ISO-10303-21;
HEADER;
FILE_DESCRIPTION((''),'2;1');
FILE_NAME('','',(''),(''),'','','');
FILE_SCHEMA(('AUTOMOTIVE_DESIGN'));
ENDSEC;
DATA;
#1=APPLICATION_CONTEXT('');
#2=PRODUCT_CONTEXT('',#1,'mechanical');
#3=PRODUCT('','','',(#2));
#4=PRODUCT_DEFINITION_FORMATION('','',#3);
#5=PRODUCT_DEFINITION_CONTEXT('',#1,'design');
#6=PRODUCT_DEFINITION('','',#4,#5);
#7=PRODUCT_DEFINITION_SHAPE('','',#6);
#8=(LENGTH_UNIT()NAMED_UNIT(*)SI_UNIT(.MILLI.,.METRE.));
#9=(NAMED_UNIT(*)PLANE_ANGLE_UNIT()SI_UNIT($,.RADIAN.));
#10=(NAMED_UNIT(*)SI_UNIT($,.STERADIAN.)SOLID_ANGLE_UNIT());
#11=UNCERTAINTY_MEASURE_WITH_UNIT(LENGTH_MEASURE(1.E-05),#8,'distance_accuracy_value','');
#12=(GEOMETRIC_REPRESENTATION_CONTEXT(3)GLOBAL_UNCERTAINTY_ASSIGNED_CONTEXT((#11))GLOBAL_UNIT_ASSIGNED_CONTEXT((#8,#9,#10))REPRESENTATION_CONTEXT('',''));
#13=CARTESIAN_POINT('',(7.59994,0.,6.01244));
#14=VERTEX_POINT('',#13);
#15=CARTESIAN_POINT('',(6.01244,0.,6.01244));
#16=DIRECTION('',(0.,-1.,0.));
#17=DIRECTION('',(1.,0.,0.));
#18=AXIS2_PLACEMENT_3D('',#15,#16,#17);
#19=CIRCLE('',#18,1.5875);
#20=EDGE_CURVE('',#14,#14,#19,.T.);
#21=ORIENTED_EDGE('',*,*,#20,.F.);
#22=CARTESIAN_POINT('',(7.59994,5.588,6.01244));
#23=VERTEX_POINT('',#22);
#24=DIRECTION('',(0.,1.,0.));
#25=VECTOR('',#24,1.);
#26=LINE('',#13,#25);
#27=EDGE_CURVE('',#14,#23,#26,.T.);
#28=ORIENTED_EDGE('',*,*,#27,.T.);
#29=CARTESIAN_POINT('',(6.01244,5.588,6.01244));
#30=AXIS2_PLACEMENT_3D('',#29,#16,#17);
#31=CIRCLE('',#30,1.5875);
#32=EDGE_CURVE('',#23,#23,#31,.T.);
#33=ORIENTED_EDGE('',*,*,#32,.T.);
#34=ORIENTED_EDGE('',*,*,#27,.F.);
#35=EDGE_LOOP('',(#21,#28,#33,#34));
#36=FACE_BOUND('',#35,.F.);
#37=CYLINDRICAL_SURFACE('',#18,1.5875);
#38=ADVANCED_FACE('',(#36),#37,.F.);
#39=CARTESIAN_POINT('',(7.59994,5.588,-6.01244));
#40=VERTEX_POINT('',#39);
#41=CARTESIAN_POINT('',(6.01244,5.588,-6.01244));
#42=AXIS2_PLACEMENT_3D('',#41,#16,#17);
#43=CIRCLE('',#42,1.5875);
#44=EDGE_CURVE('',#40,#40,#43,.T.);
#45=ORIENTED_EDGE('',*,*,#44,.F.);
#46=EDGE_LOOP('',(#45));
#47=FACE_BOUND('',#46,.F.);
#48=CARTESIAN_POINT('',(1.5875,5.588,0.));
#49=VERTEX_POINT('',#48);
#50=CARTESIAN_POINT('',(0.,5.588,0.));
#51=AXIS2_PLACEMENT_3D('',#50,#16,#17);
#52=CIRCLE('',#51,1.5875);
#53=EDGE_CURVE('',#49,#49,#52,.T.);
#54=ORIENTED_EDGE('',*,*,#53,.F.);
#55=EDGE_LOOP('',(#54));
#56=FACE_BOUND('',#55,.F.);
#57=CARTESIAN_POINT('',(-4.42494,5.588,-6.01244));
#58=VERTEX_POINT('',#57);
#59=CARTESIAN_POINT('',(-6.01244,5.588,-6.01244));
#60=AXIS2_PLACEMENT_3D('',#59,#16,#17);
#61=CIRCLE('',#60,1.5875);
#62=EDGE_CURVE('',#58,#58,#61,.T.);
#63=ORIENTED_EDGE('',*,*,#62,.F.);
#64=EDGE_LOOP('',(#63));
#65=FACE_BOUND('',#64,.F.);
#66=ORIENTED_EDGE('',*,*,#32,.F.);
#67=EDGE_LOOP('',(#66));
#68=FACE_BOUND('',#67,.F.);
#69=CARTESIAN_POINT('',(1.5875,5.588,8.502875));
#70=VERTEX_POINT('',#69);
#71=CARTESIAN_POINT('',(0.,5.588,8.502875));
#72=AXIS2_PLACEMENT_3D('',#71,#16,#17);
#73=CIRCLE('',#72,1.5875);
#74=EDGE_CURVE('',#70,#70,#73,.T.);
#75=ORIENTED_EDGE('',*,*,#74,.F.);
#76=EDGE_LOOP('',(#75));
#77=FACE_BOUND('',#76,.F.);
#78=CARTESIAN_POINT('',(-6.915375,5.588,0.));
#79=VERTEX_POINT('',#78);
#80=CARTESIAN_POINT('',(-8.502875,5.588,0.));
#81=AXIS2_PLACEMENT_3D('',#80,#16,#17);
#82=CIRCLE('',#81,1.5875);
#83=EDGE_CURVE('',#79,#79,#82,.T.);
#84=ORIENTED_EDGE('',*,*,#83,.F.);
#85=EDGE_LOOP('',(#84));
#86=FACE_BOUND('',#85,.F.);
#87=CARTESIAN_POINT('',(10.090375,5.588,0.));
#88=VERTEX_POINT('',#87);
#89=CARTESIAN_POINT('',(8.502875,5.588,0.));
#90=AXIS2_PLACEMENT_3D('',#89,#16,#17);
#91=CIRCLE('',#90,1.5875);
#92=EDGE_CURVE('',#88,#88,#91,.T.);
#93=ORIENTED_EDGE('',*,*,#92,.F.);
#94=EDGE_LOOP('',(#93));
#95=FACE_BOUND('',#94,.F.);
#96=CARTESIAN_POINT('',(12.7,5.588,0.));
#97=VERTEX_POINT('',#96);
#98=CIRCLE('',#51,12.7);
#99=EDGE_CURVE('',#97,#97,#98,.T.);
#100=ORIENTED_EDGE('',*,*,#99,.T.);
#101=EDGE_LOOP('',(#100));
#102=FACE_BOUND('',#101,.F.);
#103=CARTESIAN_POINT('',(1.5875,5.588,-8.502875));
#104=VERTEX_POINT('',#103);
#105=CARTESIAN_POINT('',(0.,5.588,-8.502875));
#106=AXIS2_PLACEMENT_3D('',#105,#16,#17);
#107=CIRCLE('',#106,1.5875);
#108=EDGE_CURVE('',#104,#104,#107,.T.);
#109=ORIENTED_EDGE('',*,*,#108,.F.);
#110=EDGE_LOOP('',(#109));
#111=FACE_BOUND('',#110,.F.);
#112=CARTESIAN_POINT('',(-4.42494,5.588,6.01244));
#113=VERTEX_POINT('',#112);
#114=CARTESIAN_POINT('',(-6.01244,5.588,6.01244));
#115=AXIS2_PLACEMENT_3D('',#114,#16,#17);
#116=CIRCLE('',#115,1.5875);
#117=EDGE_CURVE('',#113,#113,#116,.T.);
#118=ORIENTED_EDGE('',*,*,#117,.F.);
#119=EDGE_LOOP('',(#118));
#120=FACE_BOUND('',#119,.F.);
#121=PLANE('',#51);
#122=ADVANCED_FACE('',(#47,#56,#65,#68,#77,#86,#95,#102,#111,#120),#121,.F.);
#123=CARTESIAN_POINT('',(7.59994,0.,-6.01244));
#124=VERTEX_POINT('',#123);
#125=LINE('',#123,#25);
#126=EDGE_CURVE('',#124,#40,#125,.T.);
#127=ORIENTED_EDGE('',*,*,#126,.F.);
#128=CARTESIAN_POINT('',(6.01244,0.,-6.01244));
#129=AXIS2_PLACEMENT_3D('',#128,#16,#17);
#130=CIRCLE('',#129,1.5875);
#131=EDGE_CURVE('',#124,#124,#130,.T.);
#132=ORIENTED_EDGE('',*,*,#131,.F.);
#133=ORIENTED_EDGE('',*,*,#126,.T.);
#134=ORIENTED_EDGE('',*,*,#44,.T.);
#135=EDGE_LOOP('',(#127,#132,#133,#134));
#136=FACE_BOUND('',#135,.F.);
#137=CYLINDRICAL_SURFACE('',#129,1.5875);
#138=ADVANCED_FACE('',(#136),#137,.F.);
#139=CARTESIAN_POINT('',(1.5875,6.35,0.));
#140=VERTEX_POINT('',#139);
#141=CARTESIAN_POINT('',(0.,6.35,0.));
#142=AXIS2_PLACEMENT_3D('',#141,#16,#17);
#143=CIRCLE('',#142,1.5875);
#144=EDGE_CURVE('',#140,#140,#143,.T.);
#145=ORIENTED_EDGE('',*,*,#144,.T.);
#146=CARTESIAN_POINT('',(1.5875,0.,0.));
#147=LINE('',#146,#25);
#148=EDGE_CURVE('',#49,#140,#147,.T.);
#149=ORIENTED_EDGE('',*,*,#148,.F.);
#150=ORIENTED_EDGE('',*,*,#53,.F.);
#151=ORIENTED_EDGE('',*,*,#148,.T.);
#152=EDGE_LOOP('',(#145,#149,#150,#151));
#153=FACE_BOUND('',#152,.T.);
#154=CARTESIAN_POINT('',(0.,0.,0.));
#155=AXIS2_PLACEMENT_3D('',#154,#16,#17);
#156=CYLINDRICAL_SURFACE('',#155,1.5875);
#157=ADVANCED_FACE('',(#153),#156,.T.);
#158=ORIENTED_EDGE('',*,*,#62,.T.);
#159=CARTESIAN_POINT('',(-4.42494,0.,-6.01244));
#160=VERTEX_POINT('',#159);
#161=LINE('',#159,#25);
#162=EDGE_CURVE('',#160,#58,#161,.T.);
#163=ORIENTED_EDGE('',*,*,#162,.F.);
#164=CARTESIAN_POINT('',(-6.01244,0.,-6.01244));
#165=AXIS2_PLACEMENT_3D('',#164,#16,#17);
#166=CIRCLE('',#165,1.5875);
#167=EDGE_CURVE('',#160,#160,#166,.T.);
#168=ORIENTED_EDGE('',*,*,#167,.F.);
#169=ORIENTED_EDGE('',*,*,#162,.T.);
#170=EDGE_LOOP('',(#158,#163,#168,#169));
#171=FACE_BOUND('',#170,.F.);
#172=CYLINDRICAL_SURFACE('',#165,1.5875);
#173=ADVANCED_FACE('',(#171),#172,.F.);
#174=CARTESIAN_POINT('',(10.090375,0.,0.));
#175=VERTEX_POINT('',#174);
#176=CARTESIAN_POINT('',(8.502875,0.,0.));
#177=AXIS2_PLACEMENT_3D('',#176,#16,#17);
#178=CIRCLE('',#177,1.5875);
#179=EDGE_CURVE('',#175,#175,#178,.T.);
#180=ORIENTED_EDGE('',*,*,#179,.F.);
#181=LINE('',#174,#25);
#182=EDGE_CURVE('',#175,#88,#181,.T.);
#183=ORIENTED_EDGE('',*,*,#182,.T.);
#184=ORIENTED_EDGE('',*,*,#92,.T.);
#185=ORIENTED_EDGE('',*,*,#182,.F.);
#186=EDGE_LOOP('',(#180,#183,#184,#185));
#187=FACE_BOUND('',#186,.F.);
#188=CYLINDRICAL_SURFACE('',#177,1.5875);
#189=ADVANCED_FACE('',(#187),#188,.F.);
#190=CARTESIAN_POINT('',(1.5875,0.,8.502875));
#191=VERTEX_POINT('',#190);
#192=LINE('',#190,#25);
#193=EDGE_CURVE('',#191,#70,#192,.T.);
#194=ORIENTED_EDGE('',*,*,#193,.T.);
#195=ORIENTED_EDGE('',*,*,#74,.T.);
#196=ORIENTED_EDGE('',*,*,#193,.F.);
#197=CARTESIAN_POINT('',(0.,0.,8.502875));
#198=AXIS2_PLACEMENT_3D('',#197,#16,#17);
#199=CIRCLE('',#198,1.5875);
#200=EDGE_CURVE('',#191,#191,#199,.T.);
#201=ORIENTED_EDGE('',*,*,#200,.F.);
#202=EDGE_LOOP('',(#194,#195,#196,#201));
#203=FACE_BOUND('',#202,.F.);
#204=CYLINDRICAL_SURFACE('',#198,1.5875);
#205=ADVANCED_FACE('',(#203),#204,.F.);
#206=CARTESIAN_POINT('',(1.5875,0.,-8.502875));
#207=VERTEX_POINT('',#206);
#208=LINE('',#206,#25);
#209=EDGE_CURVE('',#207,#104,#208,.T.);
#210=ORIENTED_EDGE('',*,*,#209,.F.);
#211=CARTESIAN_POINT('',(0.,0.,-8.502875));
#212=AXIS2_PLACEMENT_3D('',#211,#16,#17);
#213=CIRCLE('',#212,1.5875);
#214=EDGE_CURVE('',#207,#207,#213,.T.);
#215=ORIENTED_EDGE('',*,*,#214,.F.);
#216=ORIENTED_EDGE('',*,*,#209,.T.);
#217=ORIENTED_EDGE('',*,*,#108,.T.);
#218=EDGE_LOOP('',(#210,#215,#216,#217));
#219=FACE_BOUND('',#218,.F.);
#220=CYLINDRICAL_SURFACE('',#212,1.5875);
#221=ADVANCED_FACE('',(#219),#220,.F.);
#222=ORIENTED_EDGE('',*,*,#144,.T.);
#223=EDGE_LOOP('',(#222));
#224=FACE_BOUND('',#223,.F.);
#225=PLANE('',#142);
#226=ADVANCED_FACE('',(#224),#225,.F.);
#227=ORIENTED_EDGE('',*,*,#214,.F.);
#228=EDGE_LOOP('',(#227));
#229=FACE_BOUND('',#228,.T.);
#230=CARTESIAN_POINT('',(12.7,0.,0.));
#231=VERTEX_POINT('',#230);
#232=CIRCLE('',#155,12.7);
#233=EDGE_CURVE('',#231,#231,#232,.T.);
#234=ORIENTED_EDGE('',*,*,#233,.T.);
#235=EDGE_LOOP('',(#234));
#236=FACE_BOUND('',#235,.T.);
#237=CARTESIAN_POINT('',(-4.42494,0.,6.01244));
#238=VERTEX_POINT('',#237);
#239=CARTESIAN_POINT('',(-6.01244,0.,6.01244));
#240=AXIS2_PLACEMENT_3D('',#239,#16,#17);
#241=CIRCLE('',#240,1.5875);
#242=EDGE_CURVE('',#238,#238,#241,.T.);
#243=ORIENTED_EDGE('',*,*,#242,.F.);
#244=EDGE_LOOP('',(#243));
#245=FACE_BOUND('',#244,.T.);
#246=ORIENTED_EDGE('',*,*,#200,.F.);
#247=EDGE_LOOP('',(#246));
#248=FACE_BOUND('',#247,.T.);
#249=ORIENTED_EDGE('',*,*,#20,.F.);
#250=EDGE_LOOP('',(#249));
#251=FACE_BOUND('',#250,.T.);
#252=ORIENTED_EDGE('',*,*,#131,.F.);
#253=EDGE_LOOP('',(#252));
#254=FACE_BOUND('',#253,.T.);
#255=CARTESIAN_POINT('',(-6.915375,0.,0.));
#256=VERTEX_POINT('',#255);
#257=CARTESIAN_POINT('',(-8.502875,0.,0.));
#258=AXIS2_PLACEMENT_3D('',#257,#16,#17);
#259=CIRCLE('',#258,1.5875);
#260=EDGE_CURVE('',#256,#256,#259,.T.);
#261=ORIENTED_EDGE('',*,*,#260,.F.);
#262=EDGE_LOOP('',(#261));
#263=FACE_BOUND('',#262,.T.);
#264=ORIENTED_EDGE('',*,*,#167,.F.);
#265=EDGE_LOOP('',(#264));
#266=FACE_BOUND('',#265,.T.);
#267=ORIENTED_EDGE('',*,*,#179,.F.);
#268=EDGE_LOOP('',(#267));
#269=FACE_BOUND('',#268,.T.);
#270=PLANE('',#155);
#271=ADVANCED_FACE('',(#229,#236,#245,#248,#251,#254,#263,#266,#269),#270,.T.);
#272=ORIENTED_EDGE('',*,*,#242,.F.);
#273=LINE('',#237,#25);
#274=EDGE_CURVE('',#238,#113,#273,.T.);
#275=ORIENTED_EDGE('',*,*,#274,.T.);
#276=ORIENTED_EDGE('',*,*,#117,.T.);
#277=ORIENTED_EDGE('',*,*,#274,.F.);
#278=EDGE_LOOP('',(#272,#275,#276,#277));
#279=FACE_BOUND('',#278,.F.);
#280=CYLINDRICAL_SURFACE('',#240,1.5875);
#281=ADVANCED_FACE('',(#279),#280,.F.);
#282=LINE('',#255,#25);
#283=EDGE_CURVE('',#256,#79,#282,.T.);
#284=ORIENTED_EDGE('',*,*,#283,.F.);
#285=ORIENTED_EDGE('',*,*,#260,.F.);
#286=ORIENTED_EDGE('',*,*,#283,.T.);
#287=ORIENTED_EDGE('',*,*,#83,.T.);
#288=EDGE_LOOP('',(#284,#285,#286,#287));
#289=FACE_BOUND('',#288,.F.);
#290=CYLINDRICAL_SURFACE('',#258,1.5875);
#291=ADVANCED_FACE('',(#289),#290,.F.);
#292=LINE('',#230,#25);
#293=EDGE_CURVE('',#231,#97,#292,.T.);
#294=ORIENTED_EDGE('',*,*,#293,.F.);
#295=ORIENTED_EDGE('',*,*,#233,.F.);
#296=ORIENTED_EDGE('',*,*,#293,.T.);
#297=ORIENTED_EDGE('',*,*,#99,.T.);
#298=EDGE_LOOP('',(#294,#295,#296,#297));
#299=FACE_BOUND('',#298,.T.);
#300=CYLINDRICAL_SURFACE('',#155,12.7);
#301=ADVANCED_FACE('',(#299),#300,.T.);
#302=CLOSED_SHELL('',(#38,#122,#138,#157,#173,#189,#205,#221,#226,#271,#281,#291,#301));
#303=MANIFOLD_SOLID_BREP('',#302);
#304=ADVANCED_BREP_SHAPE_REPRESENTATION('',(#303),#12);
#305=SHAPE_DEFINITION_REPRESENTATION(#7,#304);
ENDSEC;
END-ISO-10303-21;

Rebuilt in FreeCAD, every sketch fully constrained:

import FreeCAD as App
import Part
import Sketcher
from FreeCAD import Vector
Q = App.Units.Quantity

doc = App.newDocument("Part")
body = doc.addObject("PartDesign::Body", "Body")

# Sketch on XZ plane
sketch1 = doc.addObject("Sketcher::SketchObject", "Sketch")
body.addObject(sketch1)
sketch1.AttachmentSupport = (doc.XZ_Plane, [""])
sketch1.MapMode = "FlatFace"
sketch1.addGeometry([
    Part.Circle(Vector(0, 0, 0), Vector(0, 0, 1), 12.7),  # 0
    Part.Circle(Vector(-6, -6, 0), Vector(0, 0, 1), 1.6),  # 1
    Part.Circle(Vector(0, -8.5, 0), Vector(0, 0, 1), 1.6),  # 2
    Part.Circle(Vector(6, -6, 0), Vector(0, 0, 1), 1.6),  # 3
    Part.Circle(Vector(-8.5, 0, 0), Vector(0, 0, 1), 1.6),  # 4
    Part.Circle(Vector(-6, 6, 0), Vector(0, 0, 1), 1.6),  # 5
    Part.Circle(Vector(8.5, 0, 0), Vector(0, 0, 1), 1.6),  # 6
    Part.Circle(Vector(0, 8.5, 0), Vector(0, 0, 1), 1.6),  # 7
    Part.Circle(Vector(6, 6, 0), Vector(0, 0, 1), 1.6),  # 8
], False)
sketch1.addConstraint([
    Sketcher.Constraint("Coincident", 0, 3, -1, 1),
    Sketcher.Constraint("Equal", 1, 2),
    Sketcher.Constraint("Equal", 2, 3),
    Sketcher.Constraint("Equal", 3, 4),
    Sketcher.Constraint("Equal", 4, 5),
    Sketcher.Constraint("Equal", 5, 6),
    Sketcher.Constraint("Equal", 6, 7),
    Sketcher.Constraint("Equal", 7, 8),
    Sketcher.Constraint("Symmetric", 3, 3, 5, 3, -1, 1),
    Sketcher.Constraint("Symmetric", 4, 3, 6, 3, -1, 1),
    Sketcher.Constraint("Symmetric", 2, 3, 7, 3, -1, 1),
    Sketcher.Constraint("Symmetric", 1, 3, 8, 3, -1, 1),
    Sketcher.Constraint("Symmetric", 1, 3, 3, 3, -2),
    Sketcher.Constraint("PointOnObject", 2, 3, -2),
    Sketcher.Constraint("PointOnObject", 4, 3, -1),
    Sketcher.Constraint("Diameter", 0, Q("1 in")),
    Sketcher.Constraint("Diameter", 1, Q("0.125 in")),
    Sketcher.Constraint("DistanceX", 1, 3, -1, 1, 6.01244),
    Sketcher.Constraint("DistanceY", 1, 3, -1, 1, 6.01244),
    Sketcher.Constraint("DistanceY", 2, 3, -1, 1, 8.502875),
    Sketcher.Constraint("DistanceX", 4, 3, -1, 1, 8.502875),
])
pad1 = doc.addObject("PartDesign::Pad", "Pad")
body.addObject(pad1)
pad1.Profile = sketch1
pad1.Length = Q("0.22 in")
pad1.Reversed = True

# Sketch on XZ plane
sketch2 = doc.addObject("Sketcher::SketchObject", "Sketch001")
body.addObject(sketch2)
sketch2.AttachmentSupport = (doc.XZ_Plane, [""])
sketch2.MapMode = "FlatFace"
sketch2.addGeometry(Part.Circle(Vector(0, 0, 0), Vector(0, 0, 1), 1.6), False)
sketch2.addConstraint([
    Sketcher.Constraint("Coincident", 0, 3, -1, 1),
    Sketcher.Constraint("Diameter", 0, Q("0.125 in")),
])
pad2 = doc.addObject("PartDesign::Pad", "Pad001")
body.addObject(pad2)
pad2.Profile = sketch2
pad2.Length = Q("0.25 in")
pad2.Reversed = True

doc.recompute()
